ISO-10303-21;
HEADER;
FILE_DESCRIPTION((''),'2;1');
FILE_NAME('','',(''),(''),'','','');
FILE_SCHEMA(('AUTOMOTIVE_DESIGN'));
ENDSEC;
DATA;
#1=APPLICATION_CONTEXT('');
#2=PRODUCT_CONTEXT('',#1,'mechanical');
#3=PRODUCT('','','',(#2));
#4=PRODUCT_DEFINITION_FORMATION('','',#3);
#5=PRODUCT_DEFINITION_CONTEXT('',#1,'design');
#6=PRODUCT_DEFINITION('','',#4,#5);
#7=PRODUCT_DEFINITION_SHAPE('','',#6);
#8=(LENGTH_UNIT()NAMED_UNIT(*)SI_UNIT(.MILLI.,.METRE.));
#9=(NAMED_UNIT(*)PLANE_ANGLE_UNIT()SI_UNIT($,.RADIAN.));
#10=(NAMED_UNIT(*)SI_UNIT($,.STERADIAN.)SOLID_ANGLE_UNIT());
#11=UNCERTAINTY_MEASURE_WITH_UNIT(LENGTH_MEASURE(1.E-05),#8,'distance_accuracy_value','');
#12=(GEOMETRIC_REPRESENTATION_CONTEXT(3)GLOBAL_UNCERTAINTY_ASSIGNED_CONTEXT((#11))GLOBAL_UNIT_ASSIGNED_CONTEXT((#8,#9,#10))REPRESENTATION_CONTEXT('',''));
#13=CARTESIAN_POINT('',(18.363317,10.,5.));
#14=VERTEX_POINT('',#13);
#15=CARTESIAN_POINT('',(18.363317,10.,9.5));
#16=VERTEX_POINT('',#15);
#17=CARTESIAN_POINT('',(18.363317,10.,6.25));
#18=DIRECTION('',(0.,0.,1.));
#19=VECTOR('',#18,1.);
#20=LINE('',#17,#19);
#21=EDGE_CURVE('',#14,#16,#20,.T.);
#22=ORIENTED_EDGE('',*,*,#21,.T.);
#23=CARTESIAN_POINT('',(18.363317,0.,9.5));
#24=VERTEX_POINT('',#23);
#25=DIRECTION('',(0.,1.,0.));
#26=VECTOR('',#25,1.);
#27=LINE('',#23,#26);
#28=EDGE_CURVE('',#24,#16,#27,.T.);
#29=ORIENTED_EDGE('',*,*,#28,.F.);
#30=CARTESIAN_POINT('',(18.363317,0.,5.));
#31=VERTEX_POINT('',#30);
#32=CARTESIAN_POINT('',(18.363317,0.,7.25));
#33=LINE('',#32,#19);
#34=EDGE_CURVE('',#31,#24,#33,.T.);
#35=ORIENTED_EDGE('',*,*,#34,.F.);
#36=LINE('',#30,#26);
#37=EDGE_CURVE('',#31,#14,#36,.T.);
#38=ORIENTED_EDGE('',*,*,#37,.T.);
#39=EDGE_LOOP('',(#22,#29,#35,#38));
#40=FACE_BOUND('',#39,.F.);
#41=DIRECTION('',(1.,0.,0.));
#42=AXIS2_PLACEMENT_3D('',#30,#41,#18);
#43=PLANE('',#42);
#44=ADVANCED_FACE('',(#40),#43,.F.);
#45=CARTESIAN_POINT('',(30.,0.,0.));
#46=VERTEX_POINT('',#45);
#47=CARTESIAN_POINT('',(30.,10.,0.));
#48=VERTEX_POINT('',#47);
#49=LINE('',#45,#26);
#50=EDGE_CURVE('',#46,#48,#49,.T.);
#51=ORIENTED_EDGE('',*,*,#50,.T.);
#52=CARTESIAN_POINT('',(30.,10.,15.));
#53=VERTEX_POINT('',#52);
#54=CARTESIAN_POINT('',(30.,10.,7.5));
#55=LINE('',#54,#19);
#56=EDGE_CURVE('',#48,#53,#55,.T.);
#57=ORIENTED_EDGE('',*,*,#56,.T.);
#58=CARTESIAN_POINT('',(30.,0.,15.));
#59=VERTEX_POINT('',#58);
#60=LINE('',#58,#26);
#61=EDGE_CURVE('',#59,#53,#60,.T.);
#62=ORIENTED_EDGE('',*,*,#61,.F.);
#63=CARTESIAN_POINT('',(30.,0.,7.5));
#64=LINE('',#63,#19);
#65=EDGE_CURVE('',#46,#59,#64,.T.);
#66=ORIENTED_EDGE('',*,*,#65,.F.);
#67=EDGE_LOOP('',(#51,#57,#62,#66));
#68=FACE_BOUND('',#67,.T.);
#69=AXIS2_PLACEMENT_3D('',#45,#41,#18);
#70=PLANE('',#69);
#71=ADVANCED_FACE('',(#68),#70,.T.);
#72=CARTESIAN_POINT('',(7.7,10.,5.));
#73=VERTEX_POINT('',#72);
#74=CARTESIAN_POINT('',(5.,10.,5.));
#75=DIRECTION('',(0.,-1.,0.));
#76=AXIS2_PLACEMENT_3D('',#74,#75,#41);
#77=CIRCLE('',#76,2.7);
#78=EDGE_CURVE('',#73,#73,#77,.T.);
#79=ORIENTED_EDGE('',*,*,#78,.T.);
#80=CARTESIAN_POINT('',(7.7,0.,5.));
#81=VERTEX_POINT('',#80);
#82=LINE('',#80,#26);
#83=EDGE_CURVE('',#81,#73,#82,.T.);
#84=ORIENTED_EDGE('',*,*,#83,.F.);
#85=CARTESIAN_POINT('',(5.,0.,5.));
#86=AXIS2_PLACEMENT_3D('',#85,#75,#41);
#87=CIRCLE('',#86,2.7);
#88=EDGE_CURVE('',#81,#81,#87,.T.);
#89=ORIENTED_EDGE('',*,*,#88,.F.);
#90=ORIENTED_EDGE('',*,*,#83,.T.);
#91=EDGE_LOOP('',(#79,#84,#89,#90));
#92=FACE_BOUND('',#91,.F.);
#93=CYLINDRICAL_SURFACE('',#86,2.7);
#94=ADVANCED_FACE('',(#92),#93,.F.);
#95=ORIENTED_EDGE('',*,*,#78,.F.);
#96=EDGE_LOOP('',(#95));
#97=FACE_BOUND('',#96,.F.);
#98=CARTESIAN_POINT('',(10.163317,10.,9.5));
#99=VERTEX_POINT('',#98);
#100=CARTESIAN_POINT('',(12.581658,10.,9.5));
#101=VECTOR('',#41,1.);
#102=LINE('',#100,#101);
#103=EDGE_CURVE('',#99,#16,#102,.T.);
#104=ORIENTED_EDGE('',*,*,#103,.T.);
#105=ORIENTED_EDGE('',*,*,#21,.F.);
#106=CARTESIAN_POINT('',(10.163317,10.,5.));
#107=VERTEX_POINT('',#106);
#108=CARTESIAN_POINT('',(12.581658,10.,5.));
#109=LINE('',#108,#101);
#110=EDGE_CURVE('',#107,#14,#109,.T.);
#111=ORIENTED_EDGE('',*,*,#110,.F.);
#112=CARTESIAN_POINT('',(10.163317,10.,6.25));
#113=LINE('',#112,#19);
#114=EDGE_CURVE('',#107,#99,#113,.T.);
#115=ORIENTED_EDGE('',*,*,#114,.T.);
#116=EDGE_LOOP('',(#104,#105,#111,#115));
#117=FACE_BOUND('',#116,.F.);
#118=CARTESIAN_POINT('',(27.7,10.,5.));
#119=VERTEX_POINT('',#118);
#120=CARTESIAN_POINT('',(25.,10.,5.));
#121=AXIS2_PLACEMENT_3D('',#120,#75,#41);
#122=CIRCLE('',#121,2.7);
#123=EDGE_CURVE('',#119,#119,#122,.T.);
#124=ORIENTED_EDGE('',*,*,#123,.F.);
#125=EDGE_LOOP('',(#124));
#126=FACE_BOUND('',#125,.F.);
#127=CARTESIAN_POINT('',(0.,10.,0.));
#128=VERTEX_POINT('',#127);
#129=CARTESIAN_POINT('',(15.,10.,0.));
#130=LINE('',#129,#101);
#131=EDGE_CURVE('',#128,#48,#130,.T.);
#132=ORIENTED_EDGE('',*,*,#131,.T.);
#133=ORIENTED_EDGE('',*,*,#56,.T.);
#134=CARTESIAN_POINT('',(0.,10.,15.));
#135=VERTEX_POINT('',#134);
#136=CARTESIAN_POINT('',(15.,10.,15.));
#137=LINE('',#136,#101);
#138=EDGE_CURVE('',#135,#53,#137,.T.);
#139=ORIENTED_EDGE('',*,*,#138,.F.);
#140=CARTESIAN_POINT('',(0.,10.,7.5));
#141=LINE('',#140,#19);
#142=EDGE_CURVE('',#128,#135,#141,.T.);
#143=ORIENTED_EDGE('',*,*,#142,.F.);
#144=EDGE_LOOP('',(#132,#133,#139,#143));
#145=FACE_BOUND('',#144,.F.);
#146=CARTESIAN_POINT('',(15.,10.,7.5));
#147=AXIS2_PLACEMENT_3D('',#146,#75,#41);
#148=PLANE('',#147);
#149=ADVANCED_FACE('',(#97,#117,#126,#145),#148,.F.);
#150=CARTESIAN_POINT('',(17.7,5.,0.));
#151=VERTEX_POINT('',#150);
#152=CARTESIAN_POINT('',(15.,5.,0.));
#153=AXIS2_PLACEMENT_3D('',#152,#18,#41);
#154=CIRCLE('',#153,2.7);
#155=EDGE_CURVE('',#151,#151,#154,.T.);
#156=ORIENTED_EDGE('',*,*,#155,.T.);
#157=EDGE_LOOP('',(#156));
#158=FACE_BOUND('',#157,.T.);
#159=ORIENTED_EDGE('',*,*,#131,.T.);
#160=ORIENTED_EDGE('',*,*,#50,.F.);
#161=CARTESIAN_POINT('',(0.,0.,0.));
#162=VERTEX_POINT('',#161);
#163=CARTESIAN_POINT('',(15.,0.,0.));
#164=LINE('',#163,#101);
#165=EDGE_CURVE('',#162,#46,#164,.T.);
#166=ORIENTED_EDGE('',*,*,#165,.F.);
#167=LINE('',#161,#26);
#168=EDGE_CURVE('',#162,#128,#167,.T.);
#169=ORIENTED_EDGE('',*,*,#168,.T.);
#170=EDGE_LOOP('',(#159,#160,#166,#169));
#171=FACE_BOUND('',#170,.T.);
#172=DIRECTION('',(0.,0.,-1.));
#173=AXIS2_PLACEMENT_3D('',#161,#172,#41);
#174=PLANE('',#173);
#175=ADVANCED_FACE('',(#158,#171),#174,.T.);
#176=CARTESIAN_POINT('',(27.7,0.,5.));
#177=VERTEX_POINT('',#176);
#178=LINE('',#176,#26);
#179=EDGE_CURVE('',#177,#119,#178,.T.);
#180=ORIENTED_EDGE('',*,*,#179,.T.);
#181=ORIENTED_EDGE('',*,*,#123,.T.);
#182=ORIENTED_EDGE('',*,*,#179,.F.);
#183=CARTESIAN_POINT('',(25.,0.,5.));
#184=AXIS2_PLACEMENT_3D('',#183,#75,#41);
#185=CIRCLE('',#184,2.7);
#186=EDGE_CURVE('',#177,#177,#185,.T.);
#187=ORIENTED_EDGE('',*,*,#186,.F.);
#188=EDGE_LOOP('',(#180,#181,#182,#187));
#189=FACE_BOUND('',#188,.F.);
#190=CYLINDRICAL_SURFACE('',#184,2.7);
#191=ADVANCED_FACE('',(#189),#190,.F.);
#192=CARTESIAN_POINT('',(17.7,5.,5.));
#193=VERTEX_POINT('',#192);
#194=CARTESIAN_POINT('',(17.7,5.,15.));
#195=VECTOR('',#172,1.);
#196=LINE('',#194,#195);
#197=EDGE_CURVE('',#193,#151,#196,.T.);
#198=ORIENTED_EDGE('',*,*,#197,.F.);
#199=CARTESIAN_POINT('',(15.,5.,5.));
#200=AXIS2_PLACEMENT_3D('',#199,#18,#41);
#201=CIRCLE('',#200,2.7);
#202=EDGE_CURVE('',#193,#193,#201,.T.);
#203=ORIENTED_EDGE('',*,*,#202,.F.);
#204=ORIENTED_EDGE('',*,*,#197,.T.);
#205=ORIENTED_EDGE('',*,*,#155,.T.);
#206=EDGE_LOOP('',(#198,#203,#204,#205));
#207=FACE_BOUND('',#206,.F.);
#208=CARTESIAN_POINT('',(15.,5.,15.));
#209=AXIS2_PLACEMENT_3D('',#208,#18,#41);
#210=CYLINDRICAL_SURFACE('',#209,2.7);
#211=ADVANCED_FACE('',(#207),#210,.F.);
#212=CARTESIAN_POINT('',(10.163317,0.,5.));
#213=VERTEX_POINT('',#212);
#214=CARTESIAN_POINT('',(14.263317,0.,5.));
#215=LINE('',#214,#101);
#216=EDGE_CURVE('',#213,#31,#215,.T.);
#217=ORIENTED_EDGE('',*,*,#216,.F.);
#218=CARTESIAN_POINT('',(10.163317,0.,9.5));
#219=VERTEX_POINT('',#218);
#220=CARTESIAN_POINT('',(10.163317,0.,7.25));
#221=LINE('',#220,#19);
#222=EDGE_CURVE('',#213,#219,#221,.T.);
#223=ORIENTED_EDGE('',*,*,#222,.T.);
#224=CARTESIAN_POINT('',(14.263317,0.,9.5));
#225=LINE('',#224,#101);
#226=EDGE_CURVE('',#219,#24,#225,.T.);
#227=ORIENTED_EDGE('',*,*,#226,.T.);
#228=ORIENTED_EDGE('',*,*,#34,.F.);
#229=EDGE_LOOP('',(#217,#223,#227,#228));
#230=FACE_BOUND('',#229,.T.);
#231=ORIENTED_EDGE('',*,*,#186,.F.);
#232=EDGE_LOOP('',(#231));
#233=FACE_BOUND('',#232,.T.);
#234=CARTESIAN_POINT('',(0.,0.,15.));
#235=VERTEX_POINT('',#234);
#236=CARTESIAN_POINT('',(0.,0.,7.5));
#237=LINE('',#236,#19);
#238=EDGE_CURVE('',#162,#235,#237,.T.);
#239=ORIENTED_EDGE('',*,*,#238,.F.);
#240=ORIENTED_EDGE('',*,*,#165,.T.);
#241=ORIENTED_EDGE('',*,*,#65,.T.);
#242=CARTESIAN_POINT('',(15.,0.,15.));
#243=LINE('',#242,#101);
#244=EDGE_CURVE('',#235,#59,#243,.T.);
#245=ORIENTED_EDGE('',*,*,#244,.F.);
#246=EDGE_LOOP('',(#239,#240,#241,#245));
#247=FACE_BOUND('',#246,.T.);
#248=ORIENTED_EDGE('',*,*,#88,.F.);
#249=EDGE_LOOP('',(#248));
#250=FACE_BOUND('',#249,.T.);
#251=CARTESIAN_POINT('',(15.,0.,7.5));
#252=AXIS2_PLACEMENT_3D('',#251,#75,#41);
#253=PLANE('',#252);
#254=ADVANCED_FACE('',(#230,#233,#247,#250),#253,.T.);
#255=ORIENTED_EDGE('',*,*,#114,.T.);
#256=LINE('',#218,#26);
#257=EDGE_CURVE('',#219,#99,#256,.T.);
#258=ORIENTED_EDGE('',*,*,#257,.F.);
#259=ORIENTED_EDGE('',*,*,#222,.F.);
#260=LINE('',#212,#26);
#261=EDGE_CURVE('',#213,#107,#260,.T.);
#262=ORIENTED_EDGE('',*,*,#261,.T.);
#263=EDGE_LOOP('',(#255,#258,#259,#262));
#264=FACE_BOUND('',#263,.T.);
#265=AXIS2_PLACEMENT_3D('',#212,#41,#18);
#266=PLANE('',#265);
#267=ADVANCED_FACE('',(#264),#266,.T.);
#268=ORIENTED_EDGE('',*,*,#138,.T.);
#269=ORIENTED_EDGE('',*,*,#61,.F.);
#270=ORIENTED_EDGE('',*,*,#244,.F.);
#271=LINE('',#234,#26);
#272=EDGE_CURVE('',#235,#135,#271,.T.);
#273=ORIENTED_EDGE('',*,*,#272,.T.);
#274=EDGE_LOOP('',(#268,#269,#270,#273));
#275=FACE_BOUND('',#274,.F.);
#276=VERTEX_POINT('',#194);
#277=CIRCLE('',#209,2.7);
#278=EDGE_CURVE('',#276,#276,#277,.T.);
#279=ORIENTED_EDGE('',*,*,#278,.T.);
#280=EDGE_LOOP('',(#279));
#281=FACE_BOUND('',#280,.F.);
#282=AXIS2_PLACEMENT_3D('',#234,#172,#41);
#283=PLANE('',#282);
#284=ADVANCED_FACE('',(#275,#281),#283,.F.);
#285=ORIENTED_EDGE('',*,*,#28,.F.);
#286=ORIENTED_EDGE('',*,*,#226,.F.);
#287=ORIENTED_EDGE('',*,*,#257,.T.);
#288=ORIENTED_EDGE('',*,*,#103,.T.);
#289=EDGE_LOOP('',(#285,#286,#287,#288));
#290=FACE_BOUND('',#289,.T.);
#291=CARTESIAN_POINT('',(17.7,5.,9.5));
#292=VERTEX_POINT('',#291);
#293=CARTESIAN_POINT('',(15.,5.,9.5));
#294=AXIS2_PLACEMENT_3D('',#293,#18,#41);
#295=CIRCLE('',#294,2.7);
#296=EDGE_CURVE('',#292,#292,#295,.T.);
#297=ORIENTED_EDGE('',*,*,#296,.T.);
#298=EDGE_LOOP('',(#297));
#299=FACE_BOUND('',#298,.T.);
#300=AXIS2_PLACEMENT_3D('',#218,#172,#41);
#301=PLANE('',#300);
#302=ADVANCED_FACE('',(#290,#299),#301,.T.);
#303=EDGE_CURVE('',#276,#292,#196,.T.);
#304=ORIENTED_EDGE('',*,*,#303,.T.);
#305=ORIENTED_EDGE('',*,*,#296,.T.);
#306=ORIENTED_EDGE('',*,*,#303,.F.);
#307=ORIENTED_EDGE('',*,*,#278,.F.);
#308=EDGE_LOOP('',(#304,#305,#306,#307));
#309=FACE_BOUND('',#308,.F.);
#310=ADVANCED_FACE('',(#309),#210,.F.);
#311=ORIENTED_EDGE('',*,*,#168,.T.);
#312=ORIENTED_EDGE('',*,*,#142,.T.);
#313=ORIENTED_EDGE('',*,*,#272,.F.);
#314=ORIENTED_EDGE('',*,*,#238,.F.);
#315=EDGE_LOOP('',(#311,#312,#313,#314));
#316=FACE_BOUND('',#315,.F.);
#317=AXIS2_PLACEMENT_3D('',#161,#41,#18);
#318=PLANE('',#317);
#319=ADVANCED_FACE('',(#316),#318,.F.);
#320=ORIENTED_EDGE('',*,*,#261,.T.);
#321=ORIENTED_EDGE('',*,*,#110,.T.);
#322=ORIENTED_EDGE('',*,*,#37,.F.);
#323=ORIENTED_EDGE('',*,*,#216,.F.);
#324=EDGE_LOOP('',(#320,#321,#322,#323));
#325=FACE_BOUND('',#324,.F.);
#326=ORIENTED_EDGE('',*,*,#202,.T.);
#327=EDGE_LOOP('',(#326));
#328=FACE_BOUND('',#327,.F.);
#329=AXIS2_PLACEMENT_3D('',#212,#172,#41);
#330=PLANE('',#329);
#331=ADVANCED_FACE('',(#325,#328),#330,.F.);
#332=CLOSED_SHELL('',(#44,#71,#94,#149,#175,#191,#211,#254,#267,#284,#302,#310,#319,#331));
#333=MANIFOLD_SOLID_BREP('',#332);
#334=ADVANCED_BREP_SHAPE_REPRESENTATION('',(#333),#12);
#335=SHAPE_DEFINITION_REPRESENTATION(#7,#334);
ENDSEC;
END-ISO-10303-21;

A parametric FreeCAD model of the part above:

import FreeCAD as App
import Part
import Sketcher


def add_polygon(sketch, points):
    """Adds a closed chain of lines whose ends are joined by coincident constraints."""
    first, n = sketch.GeometryCount, len(points)
    for a, b in zip(points, points[1:] + points[:1]):
        sketch.addGeometry(Part.LineSegment(App.Vector(*a, 0), App.Vector(*b, 0)), False)
    for i in range(n):
        sketch.addConstraint(Sketcher.Constraint("Coincident", first + i, 2, first + (i + 1) % n, 1))

doc = App.newDocument("Part")
params = doc.addObject("Spreadsheet::Sheet", "Params")
for row, (alias, value) in enumerate([
    ("sketch1_diameter", "5.4 mm"),
    ("sketch1_width", "30 mm"),
    ("sketch1_height", "15 mm"),
    ("pad1_length", "10 mm"),
    ("sketch2_diameter", "5.4 mm"),
    ("sketch3_width", "8.2 mm"),
    ("sketch3_height", "4.5 mm"),
], start=1):
    params.set(f"A{row}", alias)
    params.set(f"B{row}", "=" + value)
    params.setAlias(f"B{row}", alias)

body = doc.addObject("PartDesign::Body", "Body")

# Sketch on XY plane
sketch1 = doc.addObject("Sketcher::SketchObject", "Sketch")
body.addObject(sketch1)
sketch1.AttachmentSupport = (doc.XY_Plane, [""])
sketch1.MapMode = "FlatFace"
add_polygon(sketch1, [(0, 15), (0, 0), (30, 0), (30, 15)])  # lines 0-3
sketch1.addGeometry(Part.Circle(App.Vector(5, 5, 0), App.Vector(0, 0, 1), 2.7), False)  # 4
sketch1.addGeometry(Part.Circle(App.Vector(25, 5, 0), App.Vector(0, 0, 1), 2.7), False)  # 5
sketch1.addConstraint([
    Sketcher.Constraint("Vertical", 0),
    Sketcher.Constraint("Horizontal", 1),
    Sketcher.Constraint("Vertical", 2),
    Sketcher.Constraint("Horizontal", 3),
    Sketcher.Constraint("Coincident", 0, 2, -1, 1),
    Sketcher.Constraint("Equal", 4, 5),
    Sketcher.Constraint("Horizontal", 4, 3, 5, 3),
    Sketcher.Constraint("Diameter", 4, 5.4),
    Sketcher.Constraint("DistanceX", 1, 1, 1, 2, 30.0),
    Sketcher.Constraint("DistanceY", 0, 2, 0, 1, 15.0),
    Sketcher.Constraint("DistanceX", -1, 1, 4, 3, 5.0),
    Sketcher.Constraint("DistanceY", -1, 1, 4, 3, 5.0),
    Sketcher.Constraint("DistanceX", -1, 1, 5, 3, 25.0),
])
sketch1.setExpression("Constraints[11]", "Params.sketch1_diameter")
sketch1.setExpression("Constraints[12]", "Params.sketch1_width")
sketch1.setExpression("Constraints[13]", "Params.sketch1_height")
pad1 = doc.addObject("PartDesign::Pad", "Pad")
body.addObject(pad1)
pad1.Profile = sketch1
pad1.setExpression("Length", "Params.pad1_length")
pad1.Reversed = True
body2 = doc.addObject("PartDesign::Body", "Body001")
doc.recompute()

body.Placement = App.Placement(App.Vector(0, 0, 0), App.Rotation(App.Vector(1, 0, 0), 90))
boolean = doc.addObject("PartDesign::Boolean", "Boolean")
body2.addObject(boolean)
boolean.Type = "Fuse"
boolean.addObjects([body])

# Sketch on XY plane
sketch2 = doc.addObject("Sketcher::SketchObject", "Sketch001")
body2.addObject(sketch2)
sketch2.AttachmentSupport = (doc.getObject("XY_Plane001"), [""])
sketch2.MapMode = "FlatFace"
sketch2.AttachmentOffset = App.Placement(App.Vector(0, 0, 15), App.Rotation())
sketch2.addGeometry(Part.Circle(App.Vector(15, 5, 0), App.Vector(0, 0, 1), 2.7), False)
sketch2.addConstraint([
    Sketcher.Constraint("Diameter", 0, 5.4),
    Sketcher.Constraint("DistanceX", -1, 1, 0, 3, 15.0),
    Sketcher.Constraint("DistanceY", -1, 1, 0, 3, 5.0),
])
sketch2.setExpression("Constraints[0]", "Params.sketch2_diameter")
pocket1 = doc.addObject("PartDesign::Pocket", "Pocket")
body2.addObject(pocket1)
pocket1.Profile = sketch2
pocket1.Type = "ThroughAll"

# Sketch on XZ plane
sketch3 = doc.addObject("Sketcher::SketchObject", "Sketch002")
body2.addObject(sketch3)
sketch3.AttachmentSupport = (doc.getObject("XZ_Plane001"), [""])
sketch3.MapMode = "FlatFace"
add_polygon(sketch3, [(10.2, 9.5), (10.2, 5), (18.4, 5), (18.4, 9.5)])  # lines 0-3
sketch3.addConstraint([
    Sketcher.Constraint("Vertical", 0),
    Sketcher.Constraint("Horizontal", 1),
    Sketcher.Constraint("Vertical", 2),
    Sketcher.Constraint("Horizontal", 3),
    Sketcher.Constraint("DistanceX", 1, 1, 1, 2, 8.2),
    Sketcher.Constraint("DistanceY", 0, 2, 0, 1, 4.5),
    Sketcher.Constraint("DistanceY", -1, 1, 0, 2, 5.0),
    Sketcher.Constraint("DistanceX", -1, 1, 0, 2, 10.163317),
])
sketch3.setExpression("Constraints[8]", "Params.sketch3_width")
sketch3.setExpression("Constraints[9]", "Params.sketch3_height")
pocket2 = doc.addObject("PartDesign::Pocket", "Pocket001")
body2.addObject(pocket2)
pocket2.Profile = sketch3
pocket2.Type = "ThroughAll"

doc.recompute()
